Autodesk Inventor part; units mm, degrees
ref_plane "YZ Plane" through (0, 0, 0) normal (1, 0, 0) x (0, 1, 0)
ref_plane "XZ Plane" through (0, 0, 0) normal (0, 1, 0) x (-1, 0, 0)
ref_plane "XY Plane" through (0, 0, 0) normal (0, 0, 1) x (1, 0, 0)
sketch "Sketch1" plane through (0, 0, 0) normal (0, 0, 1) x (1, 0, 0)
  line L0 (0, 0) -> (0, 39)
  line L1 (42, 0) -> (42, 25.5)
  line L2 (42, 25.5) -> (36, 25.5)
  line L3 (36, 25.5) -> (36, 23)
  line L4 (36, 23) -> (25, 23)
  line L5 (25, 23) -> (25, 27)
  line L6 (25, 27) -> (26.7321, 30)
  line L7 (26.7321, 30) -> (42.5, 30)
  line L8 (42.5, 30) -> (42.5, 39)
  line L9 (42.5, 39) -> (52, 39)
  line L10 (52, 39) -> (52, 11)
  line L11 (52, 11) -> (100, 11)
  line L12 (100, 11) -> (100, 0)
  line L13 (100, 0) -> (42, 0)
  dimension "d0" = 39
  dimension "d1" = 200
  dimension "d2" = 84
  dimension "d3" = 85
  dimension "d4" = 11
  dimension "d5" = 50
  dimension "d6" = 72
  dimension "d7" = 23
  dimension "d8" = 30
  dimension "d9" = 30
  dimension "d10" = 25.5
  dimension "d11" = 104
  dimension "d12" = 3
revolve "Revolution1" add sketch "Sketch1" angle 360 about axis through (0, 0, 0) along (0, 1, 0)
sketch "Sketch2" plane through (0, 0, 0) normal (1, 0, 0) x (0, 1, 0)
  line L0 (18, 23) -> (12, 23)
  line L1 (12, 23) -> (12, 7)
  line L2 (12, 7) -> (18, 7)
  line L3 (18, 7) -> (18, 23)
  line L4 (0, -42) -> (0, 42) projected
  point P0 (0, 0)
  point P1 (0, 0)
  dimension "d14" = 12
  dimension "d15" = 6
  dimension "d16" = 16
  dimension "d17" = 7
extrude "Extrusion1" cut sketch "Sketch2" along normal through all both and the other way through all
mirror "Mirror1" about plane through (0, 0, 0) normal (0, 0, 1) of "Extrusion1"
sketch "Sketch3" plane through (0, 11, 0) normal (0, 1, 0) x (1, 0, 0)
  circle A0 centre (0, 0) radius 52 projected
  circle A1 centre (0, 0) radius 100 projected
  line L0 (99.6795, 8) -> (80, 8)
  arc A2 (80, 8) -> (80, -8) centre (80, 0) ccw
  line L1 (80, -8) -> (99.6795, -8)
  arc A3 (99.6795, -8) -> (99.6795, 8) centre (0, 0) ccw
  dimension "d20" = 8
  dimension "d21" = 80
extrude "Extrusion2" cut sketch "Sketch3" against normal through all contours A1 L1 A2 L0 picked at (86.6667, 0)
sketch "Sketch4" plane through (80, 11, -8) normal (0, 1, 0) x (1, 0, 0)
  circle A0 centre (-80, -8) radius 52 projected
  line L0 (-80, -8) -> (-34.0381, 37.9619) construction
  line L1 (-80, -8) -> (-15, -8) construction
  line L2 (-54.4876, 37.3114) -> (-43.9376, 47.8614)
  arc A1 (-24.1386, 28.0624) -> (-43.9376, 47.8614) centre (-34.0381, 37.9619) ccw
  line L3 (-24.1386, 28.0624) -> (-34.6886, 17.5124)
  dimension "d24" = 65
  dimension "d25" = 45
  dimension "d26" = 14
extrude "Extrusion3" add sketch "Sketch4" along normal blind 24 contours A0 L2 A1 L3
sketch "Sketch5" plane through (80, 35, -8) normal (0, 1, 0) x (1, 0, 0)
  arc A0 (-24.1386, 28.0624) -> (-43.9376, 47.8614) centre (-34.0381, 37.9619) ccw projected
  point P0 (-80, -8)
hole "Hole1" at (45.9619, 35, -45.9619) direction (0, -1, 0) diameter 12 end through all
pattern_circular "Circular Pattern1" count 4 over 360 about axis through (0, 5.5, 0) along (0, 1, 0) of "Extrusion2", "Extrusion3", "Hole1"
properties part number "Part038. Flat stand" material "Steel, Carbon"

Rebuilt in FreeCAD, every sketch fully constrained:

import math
import FreeCAD as App
import Part
import Sketcher

V = App.Vector
Q = App.Units.Quantity

doc = App.newDocument("Part")
body = doc.addObject("PartDesign::Body", "Body")

# Sketch on XY plane
sketch1 = doc.addObject("Sketcher::SketchObject", "Sketch")
body.addObject(sketch1)
sketch1.AttachmentSupport = (doc.XY_Plane, [""])
sketch1.MapMode = "FlatFace"
sketch1.addGeometry(Part.LineSegment(V(42, 25.5, 0), V(42, 0, 0)), False)
sketch1.addGeometry(Part.LineSegment(V(42, 0, 0), V(100, 0, 0)), False)
sketch1.addGeometry(Part.LineSegment(V(100, 0, 0), V(100, 11, 0)), False)
sketch1.addGeometry(Part.LineSegment(V(100, 11, 0), V(52, 11, 0)), False)
sketch1.addGeometry(Part.LineSegment(V(52, 11, 0), V(52, 39, 0)), False)
sketch1.addGeometry(Part.LineSegment(V(52, 39, 0), V(42.5, 39, 0)), False)
sketch1.addGeometry(Part.LineSegment(V(42.5, 39, 0), V(42.5, 30, 0)), False)
sketch1.addGeometry(Part.LineSegment(V(42.5, 30, 0), V(26.7, 30, 0)), False)
sketch1.addGeometry(Part.LineSegment(V(26.7, 30, 0), V(25, 27, 0)), False)
sketch1.addGeometry(Part.LineSegment(V(25, 27, 0), V(25, 23, 0)), False)
sketch1.addGeometry(Part.LineSegment(V(25, 23, 0), V(36, 23, 0)), False)
sketch1.addGeometry(Part.LineSegment(V(36, 23, 0), V(36, 25.5, 0)), False)
sketch1.addGeometry(Part.LineSegment(V(36, 25.5, 0), V(42, 25.5, 0)), False)
sketch1.addConstraint(Sketcher.Constraint("Coincident", 0, 2, 1, 1))
sketch1.addConstraint(Sketcher.Constraint("Coincident", 1, 2, 2, 1))
sketch1.addConstraint(Sketcher.Constraint("Coincident", 2, 2, 3, 1))
sketch1.addConstraint(Sketcher.Constraint("Coincident", 3, 2, 4, 1))
sketch1.addConstraint(Sketcher.Constraint("Coincident", 4, 2, 5, 1))
sketch1.addConstraint(Sketcher.Constraint("Coincident", 5, 2, 6, 1))
sketch1.addConstraint(Sketcher.Constraint("Coincident", 6, 2, 7, 1))
sketch1.addConstraint(Sketcher.Constraint("Coincident", 7, 2, 8, 1))
sketch1.addConstraint(Sketcher.Constraint("Coincident", 8, 2, 9, 1))
sketch1.addConstraint(Sketcher.Constraint("Coincident", 9, 2, 10, 1))
sketch1.addConstraint(Sketcher.Constraint("Coincident", 10, 2, 11, 1))
sketch1.addConstraint(Sketcher.Constraint("Coincident", 11, 2, 12, 1))
sketch1.addConstraint(Sketcher.Constraint("Coincident", 12, 2, 0, 1))
sketch1.addConstraint(Sketcher.Constraint("Vertical", 0))
sketch1.addConstraint(Sketcher.Constraint("Horizontal", 1))
sketch1.addConstraint(Sketcher.Constraint("Vertical", 2))
sketch1.addConstraint(Sketcher.Constraint("Horizontal", 3))
sketch1.addConstraint(Sketcher.Constraint("Vertical", 4))
sketch1.addConstraint(Sketcher.Constraint("Horizontal", 5))
sketch1.addConstraint(Sketcher.Constraint("Vertical", 6))
sketch1.addConstraint(Sketcher.Constraint("Horizontal", 7))
sketch1.addConstraint(Sketcher.Constraint("Vertical", 9))
sketch1.addConstraint(Sketcher.Constraint("Horizontal", 10))
sketch1.addConstraint(Sketcher.Constraint("Vertical", 11))
sketch1.addConstraint(Sketcher.Constraint("Horizontal", 12))
sketch1.addConstraint(Sketcher.Constraint("PointOnObject", 0, 2, -1))
sketch1.addConstraint(Sketcher.Constraint("Equal", 10, 2))
sketch1.addConstraint(Sketcher.Constraint("DistanceX", 10, 1, 10, 2, Q("11 mm")))
sketch1.addConstraint(Sketcher.Constraint("DistanceY", 0, 2, 0, 1, Q("25.5 mm")))
sketch1.addConstraint(Sketcher.Constraint("DistanceY", -1, 1, 4, 2, Q("39 mm")))
sketch1.addConstraint(Sketcher.Constraint("DistanceY", -1, 1, 6, 2, Q("30 mm")))
sketch1.addConstraint(Sketcher.Constraint("DistanceY", -1, 1, 9, 2, Q("23 mm")))
sketch1.addConstraint(Sketcher.Constraint("DistanceY", 8, 2, 7, 2, Q("3 mm")))
sketch1.addConstraint(Sketcher.Constraint("DistanceX", 1, 1, 1, 2, Q("58 mm")))
sketch1.addConstraint(Sketcher.Constraint("DistanceX", 3, 2, 3, 1, Q("48 mm")))
sketch1.addConstraint(Sketcher.Constraint("DistanceX", 12, 1, 12, 2, Q("6 mm")))
sketch1.addConstraint(Sketcher.Constraint("Angle", 8, Q("-120.0007 deg")))
sketch1.addConstraint(Sketcher.Constraint("DistanceX", 5, 2, 5, 1, Q("9.5 mm")))
sketch1.addConstraint(Sketcher.Constraint("DistanceX", -1, 1, 0, 2, Q("42 mm")))
revolution = doc.addObject("PartDesign::Revolution", "Revolution")
body.addObject(revolution)
revolution.Profile = sketch1
revolution.ReferenceAxis = (sketch1, ["V_Axis"])
revolution.Angle = 360

# Sketch on YZ plane
sketch2 = doc.addObject("Sketcher::SketchObject", "Sketch001")
body.addObject(sketch2)
sketch2.AttachmentSupport = (doc.YZ_Plane, [""])
sketch2.MapMode = "FlatFace"
sketch2.addGeometry(Part.LineSegment(V(18, 7, 0), V(18, 23, 0)), False)
sketch2.addGeometry(Part.LineSegment(V(18, 23, 0), V(12, 23, 0)), False)
sketch2.addGeometry(Part.LineSegment(V(12, 23, 0), V(12, 7, 0)), False)
sketch2.addGeometry(Part.LineSegment(V(12, 7, 0), V(18, 7, 0)), False)
sketch2.addConstraint(Sketcher.Constraint("Coincident", 0, 2, 1, 1))
sketch2.addConstraint(Sketcher.Constraint("Coincident", 1, 2, 2, 1))
sketch2.addConstraint(Sketcher.Constraint("Coincident", 2, 2, 3, 1))
sketch2.addConstraint(Sketcher.Constraint("Coincident", 3, 2, 0, 1))
sketch2.addConstraint(Sketcher.Constraint("Vertical", 0))
sketch2.addConstraint(Sketcher.Constraint("Horizontal", 1))
sketch2.addConstraint(Sketcher.Constraint("Vertical", 2))
sketch2.addConstraint(Sketcher.Constraint("Horizontal", 3))
sketch2.addConstraint(Sketcher.Constraint("DistanceX", 1, 2, 1, 1, Q("6 mm")))
sketch2.addConstraint(Sketcher.Constraint("DistanceY", 0, 1, 0, 2, Q("16 mm")))
sketch2.addConstraint(Sketcher.Constraint("DistanceX", -1, 1, 1, 2, Q("12 mm")))
sketch2.addConstraint(Sketcher.Constraint("DistanceY", -1, 1, 2, 2, Q("7 mm")))
pocket1 = doc.addObject("PartDesign::Pocket", "Pocket")
body.addObject(pocket1)
pocket1.Profile = sketch2
pocket1.Type = "ThroughAll"
pocket1.Midplane = True
doc.recompute()

mirrored = doc.addObject("PartDesign::Mirrored", "Mirrored")
body.addObject(mirrored)
mirrored.Originals = [pocket1]
mirrored.MirrorPlane = (doc.XY_Plane, [""])
body.Tip = mirrored

# Sketch on XZ plane
sketch3 = doc.addObject("Sketcher::SketchObject", "Sketch002")
body.addObject(sketch3)
sketch3.AttachmentSupport = (doc.XZ_Plane, [""])
sketch3.MapMode = "FlatFace"
sketch3.AttachmentOffset = App.Placement(V(0, 0, -11), App.Rotation())
sketch3.addGeometry(Part.ArcOfCircle(Part.Circle(V(0, 0, 0), V(0, 0, 1), 100), math.radians(-4.59), math.radians(4.59)), False)
sketch3.addGeometry(Part.LineSegment(V(100, -8, 0), V(80, -8, 0)), False)
sketch3.addGeometry(Part.ArcOfCircle(Part.Circle(V(80, 0, 0), V(0, 0, 1), 8), math.radians(90), math.radians(270)), False)
sketch3.addGeometry(Part.LineSegment(V(80, 8, 0), V(100, 8, 0)), False)
sketch3.addConstraint(Sketcher.Constraint("Coincident", 0, 1, 1, 1))
sketch3.addConstraint(Sketcher.Constraint("Tangent", 1, 2, 2, 2))
sketch3.addConstraint(Sketcher.Constraint("Tangent", 2, 1, 3, 1))
sketch3.addConstraint(Sketcher.Constraint("Coincident", 3, 2, 0, 2))
sketch3.addConstraint(Sketcher.Constraint("Horizontal", 1))
sketch3.addConstraint(Sketcher.Constraint("Horizontal", 3))
sketch3.addConstraint(Sketcher.Constraint("Coincident", 0, 3, -1, 1))
sketch3.addConstraint(Sketcher.Constraint("PointOnObject", 2, 3, -1))
sketch3.addConstraint(Sketcher.Constraint("Radius", 2, Q("8 mm")))
sketch3.addConstraint(Sketcher.Constraint("DistanceX", -1, 1, 2, 3, Q("80 mm")))
sketch3.addConstraint(Sketcher.Constraint("Radius", 0, Q("100 mm")))
pocket2 = doc.addObject("PartDesign::Pocket", "Pocket001")
body.addObject(pocket2)
pocket2.Profile = sketch3
pocket2.Type = "ThroughAll"
pocket2.Reversed = True

# Sketch on XZ plane
sketch4 = doc.addObject("Sketcher::SketchObject", "Sketch003")
body.addObject(sketch4)
sketch4.AttachmentSupport = (doc.XZ_Plane, [""])
sketch4.MapMode = "FlatFace"
sketch4.AttachmentOffset = App.Placement(V(0, 0, -11), App.Rotation())
sketch4.addGeometry(Part.ArcOfCircle(Part.Circle(V(0, 0, 0), V(0, 0, 1), 52), math.radians(-61), math.radians(-29)), False)
sketch4.addGeometry(Part.LineSegment(V(45, -26, 0), V(56, -36, 0)), False)
sketch4.addGeometry(Part.ArcOfCircle(Part.Circle(V(46, -46, 0), V(0, 0, 1), 14), math.radians(-135), math.radians(45)), False)
sketch4.addGeometry(Part.LineSegment(V(36, -56, 0), V(26, -45, 0)), False)
sketch4.addConstraint(Sketcher.Constraint("Coincident", 0, 2, 1, 1))
sketch4.addConstraint(Sketcher.Constraint("Tangent", 1, 2, 2, 2))
sketch4.addConstraint(Sketcher.Constraint("Tangent", 2, 1, 3, 1))
sketch4.addConstraint(Sketcher.Constraint("Coincident", 3, 2, 0, 1))
sketch4.addConstraint(Sketcher.Constraint("Coincident", 0, 3, -1, 1))
sketch4.addConstraint(Sketcher.Constraint("Parallel", 1, 3))
sketch4.addConstraint(Sketcher.Constraint("Equal", 1, 3))
sketch4.addConstraint(Sketcher.Constraint("Radius", 2, Q("14 mm")))
sketch4.addConstraint(Sketcher.Constraint("Angle", 1, Q("-45 deg")))
sketch4.addConstraint(Sketcher.Constraint("Radius", 0, Q("52 mm")))
sketch4.addConstraint(Sketcher.Constraint("Distance", 1, Q("14.92 mm")))
pad1 = doc.addObject("PartDesign::Pad", "Pad")
body.addObject(pad1)
pad1.Profile = sketch4
pad1.Length = 24
pad1.Reversed = True

# Sketch on XZ plane
sketch5 = doc.addObject("Sketcher::SketchObject", "Sketch004")
body.addObject(sketch5)
sketch5.AttachmentSupport = (doc.XZ_Plane, [""])
sketch5.MapMode = "FlatFace"
sketch5.AttachmentOffset = App.Placement(V(0, 0, -35), App.Rotation())
sketch5.addGeometry(Part.Circle(V(46, -46, 0), V(0, 0, 1), 6), False)
sketch5.addConstraint(Sketcher.Constraint("Diameter", 0, Q("12 mm")))
sketch5.addConstraint(Sketcher.Constraint("DistanceX", -1, 1, 0, 3, Q("45.962 mm")))
sketch5.addConstraint(Sketcher.Constraint("DistanceY", 0, 3, -1, 1, Q("45.962 mm")))
doc.recompute()
hole = doc.addObject("PartDesign::Hole", "Hole")
body.addObject(hole)
hole.Profile = sketch5
hole.ThreadType = "None"
hole.Diameter = 12
hole.DepthType = "ThroughAll"
hole.Reversed = True
doc.recompute()

polarpattern = doc.addObject("PartDesign::PolarPattern", "PolarPattern")
body.addObject(polarpattern)
polarpattern.Originals = [pocket2, pad1, hole]
polarpattern.Axis = (doc.Y_Axis, [""])
polarpattern.Angle = 360
polarpattern.Occurrences = 4
body.Tip = polarpattern

doc.recompute()
